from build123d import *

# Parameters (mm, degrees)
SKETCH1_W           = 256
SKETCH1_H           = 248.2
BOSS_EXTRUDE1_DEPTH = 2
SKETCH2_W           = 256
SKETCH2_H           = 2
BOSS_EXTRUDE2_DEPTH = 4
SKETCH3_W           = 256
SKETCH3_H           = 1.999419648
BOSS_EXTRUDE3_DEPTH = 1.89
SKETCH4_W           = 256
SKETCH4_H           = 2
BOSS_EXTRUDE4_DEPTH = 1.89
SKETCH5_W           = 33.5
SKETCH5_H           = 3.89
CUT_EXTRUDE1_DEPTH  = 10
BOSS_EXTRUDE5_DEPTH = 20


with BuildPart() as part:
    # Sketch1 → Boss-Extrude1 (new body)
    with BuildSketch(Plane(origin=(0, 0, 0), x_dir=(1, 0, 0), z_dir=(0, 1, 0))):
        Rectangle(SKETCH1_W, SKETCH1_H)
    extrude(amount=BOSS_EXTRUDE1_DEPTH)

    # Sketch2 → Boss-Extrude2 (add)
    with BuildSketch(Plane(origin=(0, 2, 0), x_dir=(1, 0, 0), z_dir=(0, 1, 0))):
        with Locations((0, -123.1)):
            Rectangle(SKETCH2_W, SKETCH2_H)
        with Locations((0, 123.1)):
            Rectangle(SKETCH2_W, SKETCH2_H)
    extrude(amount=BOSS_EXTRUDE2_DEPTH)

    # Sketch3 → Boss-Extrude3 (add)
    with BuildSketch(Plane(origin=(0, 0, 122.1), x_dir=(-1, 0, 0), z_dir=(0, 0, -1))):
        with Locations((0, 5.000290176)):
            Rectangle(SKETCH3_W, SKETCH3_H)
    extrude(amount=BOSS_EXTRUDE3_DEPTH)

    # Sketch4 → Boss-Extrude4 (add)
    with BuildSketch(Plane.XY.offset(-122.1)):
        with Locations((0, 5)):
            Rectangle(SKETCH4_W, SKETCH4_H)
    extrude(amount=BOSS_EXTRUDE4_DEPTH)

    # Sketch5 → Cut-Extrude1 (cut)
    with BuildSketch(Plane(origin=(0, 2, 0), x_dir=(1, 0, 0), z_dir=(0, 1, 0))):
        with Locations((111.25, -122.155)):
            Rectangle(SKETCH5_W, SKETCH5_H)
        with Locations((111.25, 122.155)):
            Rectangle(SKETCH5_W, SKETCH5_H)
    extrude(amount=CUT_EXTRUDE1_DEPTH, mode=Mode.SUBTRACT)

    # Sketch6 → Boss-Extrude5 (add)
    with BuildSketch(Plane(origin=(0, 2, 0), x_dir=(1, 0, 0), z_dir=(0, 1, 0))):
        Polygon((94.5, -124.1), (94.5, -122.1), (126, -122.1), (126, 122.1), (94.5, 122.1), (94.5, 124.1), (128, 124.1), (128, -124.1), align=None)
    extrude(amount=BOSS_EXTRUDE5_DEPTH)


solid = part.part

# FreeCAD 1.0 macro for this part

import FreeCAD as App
import Part
import Sketcher

V = App.Vector

doc = App.newDocument("Part")
body = doc.addObject("PartDesign::Body", "Body")

# Sketch on XZ plane
sketch1 = body.newObject("Sketcher::SketchObject", "Sketch")
sketch1.AttachmentSupport = (doc.getObject("XZ_Plane"), [""])
sketch1.MapMode = "FlatFace"
sketch1.addGeometry([
    Part.LineSegment(V(-128, -124.1, 0), V(-128, 124.1, 0)),
    Part.LineSegment(V(-128, 124.1, 0), V(128, 124.1, 0)),
    Part.LineSegment(V(128, 124.1, 0), V(128, -124.1, 0)),
    Part.LineSegment(V(128, -124.1, 0), V(-128, -124.1, 0)),
], False)
sketch1.addConstraint([
    Sketcher.Constraint("Coincident", 0, 2, 1, 1),
    Sketcher.Constraint("Coincident", 1, 2, 2, 1),
    Sketcher.Constraint("Coincident", 2, 2, 3, 1),
    Sketcher.Constraint("Coincident", 3, 2, 0, 1),
    Sketcher.Constraint("Vertical", 0),
    Sketcher.Constraint("Horizontal", 1),
    Sketcher.Constraint("Vertical", 2),
    Sketcher.Constraint("Horizontal", 3),
    Sketcher.Constraint("Symmetric", 0, 2, 2, 2, -1, 1),
    Sketcher.Constraint("DistanceX", 1, 1, 1, 2, 256.0),
    Sketcher.Constraint("DistanceY", 0, 1, 0, 2, 248.2),
])
pad1 = body.newObject("PartDesign::Pad", "Pad")
pad1.Profile = sketch1
pad1.Length = 2
pad1.Reversed = True

# Sketch on XZ plane
sketch2 = body.newObject("Sketcher::SketchObject", "Sketch001")
sketch2.AttachmentSupport = (doc.getObject("XZ_Plane"), [""])
sketch2.MapMode = "FlatFace"
sketch2.AttachmentOffset = App.Placement(V(0, 0, -2), App.Rotation())
sketch2.addGeometry([
    Part.LineSegment(V(-128, 122.1, 0), V(-128, 124.1, 0)),  # 0
    Part.LineSegment(V(-128, 124.1, 0), V(128, 124.1, 0)),  # 1
    Part.LineSegment(V(128, 124.1, 0), V(128, 122.1, 0)),  # 2
    Part.LineSegment(V(128, 122.1, 0), V(-128, 122.1, 0)),  # 3
    Part.LineSegment(V(-128, -124.1, 0), V(-128, -122.1, 0)),  # 4
    Part.LineSegment(V(-128, -122.1, 0), V(128, -122.1, 0)),  # 5
    Part.LineSegment(V(128, -122.1, 0), V(128, -124.1, 0)),  # 6
    Part.LineSegment(V(128, -124.1, 0), V(-128, -124.1, 0)),  # 7
], False)
sketch2.addConstraint([
    Sketcher.Constraint("Coincident", 0, 2, 1, 1),
    Sketcher.Constraint("Coincident", 1, 2, 2, 1),
    Sketcher.Constraint("Coincident", 2, 2, 3, 1),
    Sketcher.Constraint("Coincident", 3, 2, 0, 1),
    Sketcher.Constraint("Coincident", 4, 2, 5, 1),
    Sketcher.Constraint("Coincident", 5, 2, 6, 1),
    Sketcher.Constraint("Coincident", 6, 2, 7, 1),
    Sketcher.Constraint("Coincident", 7, 2, 4, 1),
    Sketcher.Constraint("Vertical", 0),
    Sketcher.Constraint("Horizontal", 1),
    Sketcher.Constraint("Vertical", 2),
    Sketcher.Constraint("Horizontal", 3),
    Sketcher.Constraint("Vertical", 4),
    Sketcher.Constraint("Horizontal", 5),
    Sketcher.Constraint("Vertical", 6),
    Sketcher.Constraint("Horizontal", 7),
    Sketcher.Constraint("Symmetric", 2, 2, 4, 2, -1, 1),
    Sketcher.Constraint("Symmetric", 0, 2, 6, 2, -1, 1),
    Sketcher.Constraint("Vertical", 3, 2, 4, 2),
    Sketcher.Constraint("DistanceX", 1, 1, 1, 2, 256.0),
    Sketcher.Constraint("DistanceY", 0, 1, 0, 2, 2.0),
    Sketcher.Constraint("DistanceY", -1, 1, 0, 2, 124.1),
])
pad2 = body.newObject("PartDesign::Pad", "Pad001")
pad2.Profile = sketch2
pad2.Length = 4
pad2.Reversed = True

# Sketch on XY plane
sketch3 = body.newObject("Sketcher::SketchObject", "Sketch002")
sketch3.AttachmentSupport = (doc.getObject("XY_Plane"), [""])
sketch3.MapMode = "FlatFace"
sketch3.AttachmentOffset = App.Placement(V(0, 0, 122.1), App.Rotation())
sketch3.addGeometry([
    Part.LineSegment(V(128, 6, 0), V(128, 4.00058, 0)),
    Part.LineSegment(V(128, 4.00058, 0), V(-128, 4.00058, 0)),
    Part.LineSegment(V(-128, 4.00058, 0), V(-128, 6, 0)),
    Part.LineSegment(V(-128, 6, 0), V(128, 6, 0)),
], False)
sketch3.addConstraint([
    Sketcher.Constraint("Coincident", 0, 2, 1, 1),
    Sketcher.Constraint("Coincident", 1, 2, 2, 1),
    Sketcher.Constraint("Coincident", 2, 2, 3, 1),
    Sketcher.Constraint("Coincident", 3, 2, 0, 1),
    Sketcher.Constraint("Vertical", 0),
    Sketcher.Constraint("Horizontal", 1),
    Sketcher.Constraint("Vertical", 2),
    Sketcher.Constraint("Horizontal", 3),
    Sketcher.Constraint("DistanceX", 1, 2, 1, 1, 256.0),
    Sketcher.Constraint("DistanceX", -1, 1, 0, 2, 128.0),
    Sketcher.Constraint("DistanceY", -1, 1, 2, 2, 6.0),
    Sketcher.Constraint("DistanceY", 0, 2, 0, 1, 1.99942),
])
pad3 = body.newObject("PartDesign::Pad", "Pad002")
pad3.Profile = sketch3
pad3.Length = 1.89
pad3.Reversed = True

# Sketch on XY plane
sketch4 = body.newObject("Sketcher::SketchObject", "Sketch003")
sketch4.AttachmentSupport = (doc.getObject("XY_Plane"), [""])
sketch4.MapMode = "FlatFace"
sketch4.AttachmentOffset = App.Placement(V(0, 0, -122.1), App.Rotation())
sketch4.addGeometry([
    Part.LineSegment(V(-128, 6, 0), V(-128, 4, 0)),
    Part.LineSegment(V(-128, 4, 0), V(128, 4, 0)),
    Part.LineSegment(V(128, 4, 0), V(128, 6, 0)),
    Part.LineSegment(V(128, 6, 0), V(-128, 6, 0)),
], False)
sketch4.addConstraint([
    Sketcher.Constraint("Coincident", 0, 2, 1, 1),
    Sketcher.Constraint("Coincident", 1, 2, 2, 1),
    Sketcher.Constraint("Coincident", 2, 2, 3, 1),
    Sketcher.Constraint("Coincident", 3, 2, 0, 1),
    Sketcher.Constraint("Vertical", 0),
    Sketcher.Constraint("Horizontal", 1),
    Sketcher.Constraint("Vertical", 2),
    Sketcher.Constraint("Horizontal", 3),
    Sketcher.Constraint("DistanceX", 1, 1, 1, 2, 256.0),
    Sketcher.Constraint("DistanceY", 0, 2, 0, 1, 2.0),
    Sketcher.Constraint("DistanceX", 0, 2, -1, 1, 128.0),
    Sketcher.Constraint("DistanceY", -1, 1, 0, 2, 4.0),
])
pad4 = body.newObject("PartDesign::Pad", "Pad003")
pad4.Profile = sketch4
pad4.Length = 1.89

# Sketch on XZ plane
sketch5 = body.newObject("Sketcher::SketchObject", "Sketch004")
sketch5.AttachmentSupport = (doc.getObject("XZ_Plane"), [""])
sketch5.MapMode = "FlatFace"
sketch5.AttachmentOffset = App.Placement(V(0, 0, -2), App.Rotation())
sketch5.addGeometry([
    Part.LineSegment(V(94.5, 120.21, 0), V(94.5, 124.1, 0)),  # 0
    Part.LineSegment(V(94.5, 124.1, 0), V(128, 124.1, 0)),  # 1
    Part.LineSegment(V(128, 124.1, 0), V(128, 120.21, 0)),  # 2
    Part.LineSegment(V(128, 120.21, 0), V(94.5, 120.21, 0)),  # 3
    Part.LineSegment(V(94.5, -124.1, 0), V(94.5, -120.21, 0)),  # 4
    Part.LineSegment(V(94.5, -120.21, 0), V(128, -120.21, 0)),  # 5
    Part.LineSegment(V(128, -120.21, 0), V(128, -124.1, 0)),  # 6
    Part.LineSegment(V(128, -124.1, 0), V(94.5, -124.1, 0)),  # 7
], False)
sketch5.addConstraint([
    Sketcher.Constraint("Coincident", 0, 2, 1, 1),
    Sketcher.Constraint("Coincident", 1, 2, 2, 1),
    Sketcher.Constraint("Coincident", 2, 2, 3, 1),
    Sketcher.Constraint("Coincident", 3, 2, 0, 1),
    Sketcher.Constraint("Coincident", 4, 2, 5, 1),
    Sketcher.Constraint("Coincident", 5, 2, 6, 1),
    Sketcher.Constraint("Coincident", 6, 2, 7, 1),
    Sketcher.Constraint("Coincident", 7, 2, 4, 1),
    Sketcher.Constraint("Vertical", 0),
    Sketcher.Constraint("Horizontal", 1),
    Sketcher.Constraint("Vertical", 2),
    Sketcher.Constraint("Horizontal", 3),
    Sketcher.Constraint("Vertical", 4),
    Sketcher.Constraint("Horizontal", 5),
    Sketcher.Constraint("Vertical", 6),
    Sketcher.Constraint("Horizontal", 7),
    Sketcher.Constraint("Symmetric", 3, 2, 4, 2, -1),
    Sketcher.Constraint("Symmetric", 1, 2, 6, 2, -1),
    Sketcher.Constraint("DistanceX", 1, 1, 1, 2, 33.5),
    Sketcher.Constraint("DistanceX", -1, 1, 1, 2, 128.0),
    Sketcher.Constraint("DistanceY", 0, 1, 0, 2, 3.89),
    Sketcher.Constraint("DistanceY", -1, 1, 0, 2, 124.1),
])
pocket1 = body.newObject("PartDesign::Pocket", "Pocket")
pocket1.Profile = sketch5
pocket1.Length = 10

# Sketch on XZ plane
sketch6 = body.newObject("Sketcher::SketchObject", "Sketch005")
sketch6.AttachmentSupport = (doc.getObject("XZ_Plane"), [""])
sketch6.MapMode = "FlatFace"
sketch6.AttachmentOffset = App.Placement(V(0, 0, -2), App.Rotation())
sketch6.addGeometry([
    Part.LineSegment(V(94.5, 122.1, 0), V(94.5, 124.1, 0)),  # 0
    Part.LineSegment(V(94.5, 124.1, 0), V(128, 124.1, 0)),  # 1
    Part.LineSegment(V(128, 124.1, 0), V(128, -124.1, 0)),  # 2
    Part.LineSegment(V(128, -124.1, 0), V(94.5, -124.1, 0)),  # 3
    Part.LineSegment(V(94.5, -124.1, 0), V(94.5, -122.1, 0)),  # 4
    Part.LineSegment(V(94.5, -122.1, 0), V(126, -122.1, 0)),  # 5
    Part.LineSegment(V(126, -122.1, 0), V(126, 122.1, 0)),  # 6
    Part.LineSegment(V(126, 122.1, 0), V(94.5, 122.1, 0)),  # 7
], False)
sketch6.addConstraint([
    Sketcher.Constraint("Coincident", 0, 2, 1, 1),
    Sketcher.Constraint("Coincident", 1, 2, 2, 1),
    Sketcher.Constraint("Coincident", 2, 2, 3, 1),
    Sketcher.Constraint("Coincident", 3, 2, 4, 1),
    Sketcher.Constraint("Coincident", 4, 2, 5, 1),
    Sketcher.Constraint("Coincident", 5, 2, 6, 1),
    Sketcher.Constraint("Coincident", 6, 2, 7, 1),
    Sketcher.Constraint("Coincident", 7, 2, 0, 1),
    Sketcher.Constraint("Vertical", 0),
    Sketcher.Constraint("Horizontal", 1),
    Sketcher.Constraint("Vertical", 2),
    Sketcher.Constraint("Horizontal", 3),
    Sketcher.Constraint("Vertical", 4),
    Sketcher.Constraint("Horizontal", 5),
    Sketcher.Constraint("Vertical", 6),
    Sketcher.Constraint("Horizontal", 7),
    Sketcher.Constraint("Symmetric", 0, 2, 3, 2, -1),
    Sketcher.Constraint("Equal", 0, 4),
    Sketcher.Constraint("DistanceY", 0, 1, 0, 2, 2.0),
    Sketcher.Constraint("DistanceX", 1, 1, 1, 2, 33.5),
    Sketcher.Constraint("DistanceX", 5, 1, 5, 2, 31.5),
    Sketcher.Constraint("DistanceY", 2, 2, 2, 1, 248.2),
    Sketcher.Constraint("DistanceX", -1, 1, 1, 2, 128.0),
])
pad5 = body.newObject("PartDesign::Pad", "Pad004")
pad5.Profile = sketch6
pad5.Length = 20
pad5.Reversed = True

doc.recompute()
